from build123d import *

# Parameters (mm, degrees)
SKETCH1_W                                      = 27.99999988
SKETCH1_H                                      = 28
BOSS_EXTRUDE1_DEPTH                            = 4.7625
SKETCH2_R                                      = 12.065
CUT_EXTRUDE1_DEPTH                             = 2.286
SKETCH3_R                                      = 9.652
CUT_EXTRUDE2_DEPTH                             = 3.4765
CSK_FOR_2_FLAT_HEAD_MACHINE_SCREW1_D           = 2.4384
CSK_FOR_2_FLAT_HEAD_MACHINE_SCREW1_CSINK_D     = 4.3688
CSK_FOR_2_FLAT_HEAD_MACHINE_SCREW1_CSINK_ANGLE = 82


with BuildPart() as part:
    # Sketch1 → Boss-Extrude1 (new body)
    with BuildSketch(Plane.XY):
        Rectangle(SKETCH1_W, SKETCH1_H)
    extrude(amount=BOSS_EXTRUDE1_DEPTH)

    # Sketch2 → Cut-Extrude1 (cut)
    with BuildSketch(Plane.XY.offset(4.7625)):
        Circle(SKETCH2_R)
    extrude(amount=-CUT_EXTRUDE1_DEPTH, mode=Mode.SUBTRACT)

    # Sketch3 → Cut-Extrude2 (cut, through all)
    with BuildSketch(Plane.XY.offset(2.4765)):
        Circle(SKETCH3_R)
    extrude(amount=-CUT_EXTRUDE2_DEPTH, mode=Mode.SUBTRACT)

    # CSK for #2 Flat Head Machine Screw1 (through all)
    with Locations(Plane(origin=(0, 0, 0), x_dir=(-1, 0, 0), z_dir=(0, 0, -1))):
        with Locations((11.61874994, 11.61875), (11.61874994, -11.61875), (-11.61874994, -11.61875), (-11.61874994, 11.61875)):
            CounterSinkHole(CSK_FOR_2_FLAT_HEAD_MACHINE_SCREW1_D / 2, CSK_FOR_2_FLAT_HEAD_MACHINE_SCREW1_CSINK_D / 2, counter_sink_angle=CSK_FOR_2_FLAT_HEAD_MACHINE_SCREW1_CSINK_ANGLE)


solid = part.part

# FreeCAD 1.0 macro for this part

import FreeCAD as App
import Part
import Sketcher

V = App.Vector
Q = App.Units.Quantity

doc = App.newDocument("Part")
body = doc.addObject("PartDesign::Body", "Body")

# Sketch on XY plane
sketch1 = body.newObject("Sketcher::SketchObject", "Sketch")
sketch1.AttachmentSupport = (doc.getObject("XY_Plane"), [""])
sketch1.MapMode = "FlatFace"
sketch1.addGeometry([
    Part.LineSegment(V(-14, 14, 0), V(-14, -14, 0)),
    Part.LineSegment(V(-14, -14, 0), V(14, -14, 0)),
    Part.LineSegment(V(14, -14, 0), V(14, 14, 0)),
    Part.LineSegment(V(14, 14, 0), V(-14, 14, 0)),
], False)
sketch1.addConstraint([
    Sketcher.Constraint("Coincident", 0, 2, 1, 1),
    Sketcher.Constraint("Coincident", 1, 2, 2, 1),
    Sketcher.Constraint("Coincident", 2, 2, 3, 1),
    Sketcher.Constraint("Coincident", 3, 2, 0, 1),
    Sketcher.Constraint("Vertical", 0),
    Sketcher.Constraint("Horizontal", 1),
    Sketcher.Constraint("Vertical", 2),
    Sketcher.Constraint("Horizontal", 3),
    Sketcher.Constraint("Symmetric", 0, 2, 2, 2, -1, 1),
    Sketcher.Constraint("Equal", 3, 0),
    Sketcher.Constraint("DistanceX", 1, 1, 1, 2, Q("28 mm")),
])
pad1 = body.newObject("PartDesign::Pad", "Pad")
pad1.Profile = sketch1
pad1.Length = Q("0.1875 in")

# Sketch on XY plane
sketch2 = body.newObject("Sketcher::SketchObject", "Sketch001")
sketch2.AttachmentSupport = (doc.getObject("XY_Plane"), [""])
sketch2.MapMode = "FlatFace"
sketch2.AttachmentOffset = App.Placement(V(0, 0, 0.1875 * 25.4), App.Rotation())
sketch2.addGeometry(Part.Circle(V(0, 0, 0), V(0, 0, 1), 12), False)
sketch2.addConstraint([
    Sketcher.Constraint("Coincident", 0, 3, -1, 1),
    Sketcher.Constraint("Diameter", 0, Q("0.95 in")),
])
pocket1 = body.newObject("PartDesign::Pocket", "Pocket")
pocket1.Profile = sketch2
pocket1.Length = Q("0.09 in")

# Sketch on XY plane
sketch3 = body.newObject("Sketcher::SketchObject", "Sketch002")
sketch3.AttachmentSupport = (doc.getObject("XY_Plane"), [""])
sketch3.MapMode = "FlatFace"
sketch3.AttachmentOffset = App.Placement(V(0, 0, 0.0975 * 25.4), App.Rotation())
sketch3.addGeometry(Part.Circle(V(0, 0, 0), V(0, 0, 1), 10), False)
sketch3.addConstraint([
    Sketcher.Constraint("Coincident", 0, 3, -1, 1),
    Sketcher.Constraint("Diameter", 0, Q("0.76 in")),
])
pocket2 = body.newObject("PartDesign::Pocket", "Pocket001")
pocket2.Profile = sketch3
pocket2.Type = "ThroughAll"

# Sketch on XY plane
sketch4 = body.newObject("Sketcher::SketchObject", "Sketch003")
sketch4.AttachmentSupport = (doc.getObject("XY_Plane"), [""])
sketch4.MapMode = "FlatFace"
sketch4.addGeometry([
    Part.Circle(V(-11.6, 11.6, 0), V(0, 0, 1), 1.2),
    Part.Circle(V(-11.6, -11.6, 0), V(0, 0, 1), 1.2),
    Part.Circle(V(11.6, -11.6, 0), V(0, 0, 1), 1.2),
    Part.Circle(V(11.6, 11.6, 0), V(0, 0, 1), 1.2),
], False)
sketch4.addConstraint([
    Sketcher.Constraint("Equal", 0, 1),
    Sketcher.Constraint("Equal", 1, 2),
    Sketcher.Constraint("Equal", 2, 3),
    Sketcher.Constraint("Symmetric", 0, 3, 2, 3, -1, 1),
    Sketcher.Constraint("Symmetric", 1, 3, 3, 3, -1, 1),
    Sketcher.Constraint("Symmetric", 1, 3, 2, 3, -2),
    Sketcher.Constraint("Diameter", 0, Q("0.096 in")),
    Sketcher.Constraint("DistanceY", 1, 3, 0, 3, Q("23.2375 mm")),
    Sketcher.Constraint("DistanceX", 1, 3, 2, 3, Q("23.2375 mm")),
])
doc.recompute()
hole = body.newObject("PartDesign::Hole", "Hole")
hole.Profile = sketch4
hole.ThreadType = "None"
hole.Diameter = Q("0.096 in")
hole.DepthType = "ThroughAll"
hole.HoleCutType = "Countersink"
hole.HoleCutDiameter = Q("0.172 in")
hole.HoleCutCountersinkAngle = 82
hole.Reversed = True

doc.recompute()
